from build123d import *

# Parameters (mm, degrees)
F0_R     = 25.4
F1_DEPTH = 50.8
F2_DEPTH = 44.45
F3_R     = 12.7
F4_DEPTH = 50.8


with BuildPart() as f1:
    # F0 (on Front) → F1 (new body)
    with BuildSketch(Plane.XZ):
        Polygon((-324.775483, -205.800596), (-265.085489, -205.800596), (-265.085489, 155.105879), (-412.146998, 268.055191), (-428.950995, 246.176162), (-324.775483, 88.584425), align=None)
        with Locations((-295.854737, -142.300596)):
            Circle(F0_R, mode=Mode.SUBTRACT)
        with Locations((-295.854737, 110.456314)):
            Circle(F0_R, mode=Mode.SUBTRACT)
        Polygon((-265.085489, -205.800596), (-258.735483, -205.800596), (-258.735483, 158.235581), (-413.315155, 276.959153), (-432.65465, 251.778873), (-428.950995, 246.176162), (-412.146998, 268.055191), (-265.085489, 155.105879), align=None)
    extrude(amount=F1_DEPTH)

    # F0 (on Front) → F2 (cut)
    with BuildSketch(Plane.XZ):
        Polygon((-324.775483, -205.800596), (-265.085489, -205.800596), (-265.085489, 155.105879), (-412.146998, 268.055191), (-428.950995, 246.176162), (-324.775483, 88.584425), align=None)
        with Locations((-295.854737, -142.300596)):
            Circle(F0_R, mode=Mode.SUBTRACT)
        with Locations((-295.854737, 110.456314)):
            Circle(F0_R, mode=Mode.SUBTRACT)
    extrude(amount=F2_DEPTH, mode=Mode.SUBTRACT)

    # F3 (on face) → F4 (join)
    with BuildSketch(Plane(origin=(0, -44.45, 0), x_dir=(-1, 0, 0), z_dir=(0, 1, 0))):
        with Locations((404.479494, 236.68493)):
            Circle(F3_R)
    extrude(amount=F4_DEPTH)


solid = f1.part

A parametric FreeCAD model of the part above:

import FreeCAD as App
import Part
import Sketcher
Q = App.Units.Quantity


def add_polygon(sketch, points):
    """Adds a closed chain of lines whose ends are joined by coincident constraints."""
    first, n = sketch.GeometryCount, len(points)
    for a, b in zip(points, points[1:] + points[:1]):
        sketch.addGeometry(Part.LineSegment(App.Vector(*a, 0), App.Vector(*b, 0)), False)
    for i in range(n):
        sketch.addConstraint(Sketcher.Constraint("Coincident", first + i, 2, first + (i + 1) % n, 1))

doc = App.newDocument("Part")
body = doc.addObject("PartDesign::Body", "Body")

# Sketch on XZ plane
sketch1 = body.newObject("Sketcher::SketchObject", "Sketch")
sketch1.AttachmentSupport = (doc.getObject("XZ_Plane"), [""])
sketch1.MapMode = "FlatFace"
add_polygon(sketch1, [(-325, -206), (-259, -206), (-259, 158), (-413, 277), (-433, 252), (-429, 246), (-325, 89)])  # lines 0-6
sketch1.addGeometry(Part.Circle(App.Vector(-296, -142, 0), App.Vector(0, 0, 1), 25), False)  # 7
sketch1.addGeometry(Part.Circle(App.Vector(-296, 110, 0), App.Vector(0, 0, 1), 25), False)  # 8
sketch1.addConstraint([
    Sketcher.Constraint("Horizontal", 0),
    Sketcher.Constraint("Vertical", 1),
    Sketcher.Constraint("Vertical", 6),
    Sketcher.Constraint("Equal", 7, 8),
    Sketcher.Constraint("Perpendicular", 2, 3),
    Sketcher.Constraint("Parallel", 4, 5),
    Sketcher.Constraint("Vertical", 7, 3, 8, 3),
    Sketcher.Constraint("Diameter", 7, Q("2 in")),
    Sketcher.Constraint("DistanceX", 0, 1, 0, 2, Q("2.6 in")),
    Sketcher.Constraint("DistanceY", 0, 2, 7, 3, Q("2.5 in")),
    Sketcher.Constraint("Distance", 3, Q("1.25 in")),
    Sketcher.Constraint("DistanceY", 6, 2, 6, 1, 294.385021),
    Sketcher.Constraint("Distance", 2, 194.91065),
    Sketcher.Constraint("DistanceY", 1, 1, 1, 2, 364.036177),
    Sketcher.Constraint("DistanceY", -1, 1, 1, 2, 158.235581),
    Sketcher.Constraint("DistanceX", 3, 2, -1, 1, 432.65465),
    Sketcher.Constraint("DistanceY", -1, 1, 4, 2, 246.176162),
    Sketcher.Constraint("DistanceY", 7, 3, 8, 3, 252.75691),
    Sketcher.Constraint("DistanceX", 2, 2, 8, 3, 117.460418),
    Sketcher.Constraint("DistanceY", 8, 3, 2, 2, 166.502839),
])
pad1 = body.newObject("PartDesign::Pad", "Pad")
pad1.Profile = sketch1
pad1.Length = Q("2 in")

# Sketch on XZ plane
sketch2 = body.newObject("Sketcher::SketchObject", "Sketch001")
sketch2.AttachmentSupport = (doc.getObject("XZ_Plane"), [""])
sketch2.MapMode = "FlatFace"
add_polygon(sketch2, [(-325, -206), (-265, -206), (-265, 155), (-412, 268), (-429, 246), (-325, 89)])  # lines 0-5
sketch2.addGeometry(Part.Circle(App.Vector(-296, -142, 0), App.Vector(0, 0, 1), 25), False)  # 6
sketch2.addGeometry(Part.Circle(App.Vector(-296, 110, 0), App.Vector(0, 0, 1), 25), False)  # 7
sketch2.addConstraint([
    Sketcher.Constraint("Horizontal", 0),
    Sketcher.Constraint("Vertical", 1),
    Sketcher.Constraint("Vertical", 5),
    Sketcher.Constraint("Equal", 6, 7),
    Sketcher.Constraint("Perpendicular", 2, 3),
    Sketcher.Constraint("Vertical", 6, 3, 7, 3),
    Sketcher.Constraint("Diameter", 6, Q("2 in")),
    Sketcher.Constraint("DistanceY", 0, 2, 6, 3, Q("2.5 in")),
    Sketcher.Constraint("DistanceY", 5, 2, 5, 1, 294.385021),
    Sketcher.Constraint("DistanceX", 2, 2, -1, 1, 412.146998),
    Sketcher.Constraint("Distance", 3, 27.587429),
    Sketcher.Constraint("DistanceX", 0, 1, 0, 2, 59.689994),
    Sketcher.Constraint("DistanceY", 1, 1, 1, 2, 360.906475),
    Sketcher.Constraint("DistanceX", 0, 2, -1, 1, 265.085489),
    Sketcher.Constraint("DistanceY", -1, 1, 1, 2, 155.105879),
    Sketcher.Constraint("DistanceY", -1, 1, 2, 2, 268.055191),
    Sketcher.Constraint("DistanceY", 6, 3, 7, 3, 252.75691),
    Sketcher.Constraint("DistanceX", 6, 3, 0, 2, 30.769248),
])
pocket1 = body.newObject("PartDesign::Pocket", "Pocket")
pocket1.Profile = sketch2
pocket1.Length = Q("1.75 in")
pocket1.Reversed = True

# Sketch on XZ plane
sketch3 = body.newObject("Sketcher::SketchObject", "Sketch002")
sketch3.AttachmentSupport = (doc.getObject("XZ_Plane"), [""])
sketch3.MapMode = "FlatFace"
sketch3.AttachmentOffset = App.Placement(App.Vector(0, 0, 1.75 * 25.4), App.Rotation())
sketch3.addGeometry(Part.Circle(App.Vector(-404, 237, 0), App.Vector(0, 0, 1), 13), False)
sketch3.addConstraint([
    Sketcher.Constraint("Diameter", 0, Q("1 in")),
    Sketcher.Constraint("DistanceY", -1, 1, 0, 3, 236.68493),
    Sketcher.Constraint("DistanceX", 0, 3, -1, 1, 404.479494),
])
pad2 = body.newObject("PartDesign::Pad", "Pad001")
pad2.Profile = sketch3
pad2.Length = Q("2 in")
pad2.Reversed = True

doc.recompute()
